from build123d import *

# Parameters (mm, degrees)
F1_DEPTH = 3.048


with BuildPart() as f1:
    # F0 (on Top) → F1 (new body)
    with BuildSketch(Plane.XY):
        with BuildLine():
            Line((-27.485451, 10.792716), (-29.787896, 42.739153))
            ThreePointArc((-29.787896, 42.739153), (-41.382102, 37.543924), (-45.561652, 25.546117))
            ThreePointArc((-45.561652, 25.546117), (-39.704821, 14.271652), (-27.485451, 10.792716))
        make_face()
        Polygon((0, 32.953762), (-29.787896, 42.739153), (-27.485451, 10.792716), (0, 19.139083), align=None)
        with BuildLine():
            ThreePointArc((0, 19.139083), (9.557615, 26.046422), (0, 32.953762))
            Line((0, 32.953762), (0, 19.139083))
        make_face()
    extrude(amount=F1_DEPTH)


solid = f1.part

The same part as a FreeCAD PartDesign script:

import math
import FreeCAD as App
import Part
import Sketcher
from FreeCAD import Vector
Q = App.Units.Quantity

doc = App.newDocument("Part")
params = doc.addObject("Spreadsheet::Sheet", "Params")
for row, (alias, value) in enumerate([
    ("pad1_length", "0.12 in"),
], start=1):
    params.set(f"A{row}", alias)
    params.set(f"B{row}", "=" + value)
    params.setAlias(f"B{row}", alias)

body = doc.addObject("PartDesign::Body", "Body")

sketch1 = doc.addObject("Sketcher::SketchObject", "Sketch")
body.addObject(sketch1)
sketch1.AttachmentSupport = (doc.XY_Plane, [""])
sketch1.MapMode = "FlatFace"
sketch1.addGeometry([
    Part.ArcOfCircle(Part.Circle(Vector(-30, 27, 0), Vector(0, 0, 1), 16), math.radians(91), math.radians(184)),
    Part.ArcOfCircle(Part.Circle(Vector(-30, 27, 0), Vector(0, 0, 1), 16), math.radians(-176), math.radians(-83)),
    Part.LineSegment(Vector(-27, 11, 0), Vector(0, 19, 0)),
    Part.ArcOfCircle(Part.Circle(Vector(2, 26, 0), Vector(0, 0, 1), 7), math.radians(-108), math.radians(108)),
    Part.LineSegment(Vector(0, 33, 0), Vector(-30, 43, 0)),
], False)
sketch1.addConstraint([
    Sketcher.Constraint("Tangent", 0, 2, 1, 1),
    Sketcher.Constraint("Coincident", 1, 2, 2, 1),
    Sketcher.Constraint("Coincident", 2, 2, 3, 1),
    Sketcher.Constraint("Coincident", 3, 2, 4, 1),
    Sketcher.Constraint("Coincident", 4, 2, 0, 1),
    Sketcher.Constraint("Equal", 0, 1),
    Sketcher.Constraint("PointOnObject", 2, 2, -2),
    Sketcher.Constraint("PointOnObject", 3, 2, -2),
    Sketcher.Constraint("Radius", 0, Q("16.041479 mm")),
    Sketcher.Constraint("Radius", 3, Q("7.274793 mm")),
    Sketcher.Constraint("DistanceX", 0, 2, 1, 2, Q("18.076201 mm")),
    Sketcher.Constraint("DistanceY", 1, 2, 0, 2, Q("14.753401 mm")),
    Sketcher.Constraint("Distance", 2, Q("28.72476 mm")),
    Sketcher.Constraint("Distance", 4, Q("31.353989 mm")),
    Sketcher.Constraint("DistanceY", -1, 1, 0, 3, Q("26.699269 mm")),
    Sketcher.Constraint("DistanceX", -1, 1, 3, 3, Q("2.282822 mm")),
    Sketcher.Constraint("DistanceX", 0, 2, -1, 1, Q("45.561652 mm")),
])
pad1 = doc.addObject("PartDesign::Pad", "Pad")
body.addObject(pad1)
pad1.Profile = sketch1
pad1.setExpression("Length", "Params.pad1_length")

doc.recompute()
